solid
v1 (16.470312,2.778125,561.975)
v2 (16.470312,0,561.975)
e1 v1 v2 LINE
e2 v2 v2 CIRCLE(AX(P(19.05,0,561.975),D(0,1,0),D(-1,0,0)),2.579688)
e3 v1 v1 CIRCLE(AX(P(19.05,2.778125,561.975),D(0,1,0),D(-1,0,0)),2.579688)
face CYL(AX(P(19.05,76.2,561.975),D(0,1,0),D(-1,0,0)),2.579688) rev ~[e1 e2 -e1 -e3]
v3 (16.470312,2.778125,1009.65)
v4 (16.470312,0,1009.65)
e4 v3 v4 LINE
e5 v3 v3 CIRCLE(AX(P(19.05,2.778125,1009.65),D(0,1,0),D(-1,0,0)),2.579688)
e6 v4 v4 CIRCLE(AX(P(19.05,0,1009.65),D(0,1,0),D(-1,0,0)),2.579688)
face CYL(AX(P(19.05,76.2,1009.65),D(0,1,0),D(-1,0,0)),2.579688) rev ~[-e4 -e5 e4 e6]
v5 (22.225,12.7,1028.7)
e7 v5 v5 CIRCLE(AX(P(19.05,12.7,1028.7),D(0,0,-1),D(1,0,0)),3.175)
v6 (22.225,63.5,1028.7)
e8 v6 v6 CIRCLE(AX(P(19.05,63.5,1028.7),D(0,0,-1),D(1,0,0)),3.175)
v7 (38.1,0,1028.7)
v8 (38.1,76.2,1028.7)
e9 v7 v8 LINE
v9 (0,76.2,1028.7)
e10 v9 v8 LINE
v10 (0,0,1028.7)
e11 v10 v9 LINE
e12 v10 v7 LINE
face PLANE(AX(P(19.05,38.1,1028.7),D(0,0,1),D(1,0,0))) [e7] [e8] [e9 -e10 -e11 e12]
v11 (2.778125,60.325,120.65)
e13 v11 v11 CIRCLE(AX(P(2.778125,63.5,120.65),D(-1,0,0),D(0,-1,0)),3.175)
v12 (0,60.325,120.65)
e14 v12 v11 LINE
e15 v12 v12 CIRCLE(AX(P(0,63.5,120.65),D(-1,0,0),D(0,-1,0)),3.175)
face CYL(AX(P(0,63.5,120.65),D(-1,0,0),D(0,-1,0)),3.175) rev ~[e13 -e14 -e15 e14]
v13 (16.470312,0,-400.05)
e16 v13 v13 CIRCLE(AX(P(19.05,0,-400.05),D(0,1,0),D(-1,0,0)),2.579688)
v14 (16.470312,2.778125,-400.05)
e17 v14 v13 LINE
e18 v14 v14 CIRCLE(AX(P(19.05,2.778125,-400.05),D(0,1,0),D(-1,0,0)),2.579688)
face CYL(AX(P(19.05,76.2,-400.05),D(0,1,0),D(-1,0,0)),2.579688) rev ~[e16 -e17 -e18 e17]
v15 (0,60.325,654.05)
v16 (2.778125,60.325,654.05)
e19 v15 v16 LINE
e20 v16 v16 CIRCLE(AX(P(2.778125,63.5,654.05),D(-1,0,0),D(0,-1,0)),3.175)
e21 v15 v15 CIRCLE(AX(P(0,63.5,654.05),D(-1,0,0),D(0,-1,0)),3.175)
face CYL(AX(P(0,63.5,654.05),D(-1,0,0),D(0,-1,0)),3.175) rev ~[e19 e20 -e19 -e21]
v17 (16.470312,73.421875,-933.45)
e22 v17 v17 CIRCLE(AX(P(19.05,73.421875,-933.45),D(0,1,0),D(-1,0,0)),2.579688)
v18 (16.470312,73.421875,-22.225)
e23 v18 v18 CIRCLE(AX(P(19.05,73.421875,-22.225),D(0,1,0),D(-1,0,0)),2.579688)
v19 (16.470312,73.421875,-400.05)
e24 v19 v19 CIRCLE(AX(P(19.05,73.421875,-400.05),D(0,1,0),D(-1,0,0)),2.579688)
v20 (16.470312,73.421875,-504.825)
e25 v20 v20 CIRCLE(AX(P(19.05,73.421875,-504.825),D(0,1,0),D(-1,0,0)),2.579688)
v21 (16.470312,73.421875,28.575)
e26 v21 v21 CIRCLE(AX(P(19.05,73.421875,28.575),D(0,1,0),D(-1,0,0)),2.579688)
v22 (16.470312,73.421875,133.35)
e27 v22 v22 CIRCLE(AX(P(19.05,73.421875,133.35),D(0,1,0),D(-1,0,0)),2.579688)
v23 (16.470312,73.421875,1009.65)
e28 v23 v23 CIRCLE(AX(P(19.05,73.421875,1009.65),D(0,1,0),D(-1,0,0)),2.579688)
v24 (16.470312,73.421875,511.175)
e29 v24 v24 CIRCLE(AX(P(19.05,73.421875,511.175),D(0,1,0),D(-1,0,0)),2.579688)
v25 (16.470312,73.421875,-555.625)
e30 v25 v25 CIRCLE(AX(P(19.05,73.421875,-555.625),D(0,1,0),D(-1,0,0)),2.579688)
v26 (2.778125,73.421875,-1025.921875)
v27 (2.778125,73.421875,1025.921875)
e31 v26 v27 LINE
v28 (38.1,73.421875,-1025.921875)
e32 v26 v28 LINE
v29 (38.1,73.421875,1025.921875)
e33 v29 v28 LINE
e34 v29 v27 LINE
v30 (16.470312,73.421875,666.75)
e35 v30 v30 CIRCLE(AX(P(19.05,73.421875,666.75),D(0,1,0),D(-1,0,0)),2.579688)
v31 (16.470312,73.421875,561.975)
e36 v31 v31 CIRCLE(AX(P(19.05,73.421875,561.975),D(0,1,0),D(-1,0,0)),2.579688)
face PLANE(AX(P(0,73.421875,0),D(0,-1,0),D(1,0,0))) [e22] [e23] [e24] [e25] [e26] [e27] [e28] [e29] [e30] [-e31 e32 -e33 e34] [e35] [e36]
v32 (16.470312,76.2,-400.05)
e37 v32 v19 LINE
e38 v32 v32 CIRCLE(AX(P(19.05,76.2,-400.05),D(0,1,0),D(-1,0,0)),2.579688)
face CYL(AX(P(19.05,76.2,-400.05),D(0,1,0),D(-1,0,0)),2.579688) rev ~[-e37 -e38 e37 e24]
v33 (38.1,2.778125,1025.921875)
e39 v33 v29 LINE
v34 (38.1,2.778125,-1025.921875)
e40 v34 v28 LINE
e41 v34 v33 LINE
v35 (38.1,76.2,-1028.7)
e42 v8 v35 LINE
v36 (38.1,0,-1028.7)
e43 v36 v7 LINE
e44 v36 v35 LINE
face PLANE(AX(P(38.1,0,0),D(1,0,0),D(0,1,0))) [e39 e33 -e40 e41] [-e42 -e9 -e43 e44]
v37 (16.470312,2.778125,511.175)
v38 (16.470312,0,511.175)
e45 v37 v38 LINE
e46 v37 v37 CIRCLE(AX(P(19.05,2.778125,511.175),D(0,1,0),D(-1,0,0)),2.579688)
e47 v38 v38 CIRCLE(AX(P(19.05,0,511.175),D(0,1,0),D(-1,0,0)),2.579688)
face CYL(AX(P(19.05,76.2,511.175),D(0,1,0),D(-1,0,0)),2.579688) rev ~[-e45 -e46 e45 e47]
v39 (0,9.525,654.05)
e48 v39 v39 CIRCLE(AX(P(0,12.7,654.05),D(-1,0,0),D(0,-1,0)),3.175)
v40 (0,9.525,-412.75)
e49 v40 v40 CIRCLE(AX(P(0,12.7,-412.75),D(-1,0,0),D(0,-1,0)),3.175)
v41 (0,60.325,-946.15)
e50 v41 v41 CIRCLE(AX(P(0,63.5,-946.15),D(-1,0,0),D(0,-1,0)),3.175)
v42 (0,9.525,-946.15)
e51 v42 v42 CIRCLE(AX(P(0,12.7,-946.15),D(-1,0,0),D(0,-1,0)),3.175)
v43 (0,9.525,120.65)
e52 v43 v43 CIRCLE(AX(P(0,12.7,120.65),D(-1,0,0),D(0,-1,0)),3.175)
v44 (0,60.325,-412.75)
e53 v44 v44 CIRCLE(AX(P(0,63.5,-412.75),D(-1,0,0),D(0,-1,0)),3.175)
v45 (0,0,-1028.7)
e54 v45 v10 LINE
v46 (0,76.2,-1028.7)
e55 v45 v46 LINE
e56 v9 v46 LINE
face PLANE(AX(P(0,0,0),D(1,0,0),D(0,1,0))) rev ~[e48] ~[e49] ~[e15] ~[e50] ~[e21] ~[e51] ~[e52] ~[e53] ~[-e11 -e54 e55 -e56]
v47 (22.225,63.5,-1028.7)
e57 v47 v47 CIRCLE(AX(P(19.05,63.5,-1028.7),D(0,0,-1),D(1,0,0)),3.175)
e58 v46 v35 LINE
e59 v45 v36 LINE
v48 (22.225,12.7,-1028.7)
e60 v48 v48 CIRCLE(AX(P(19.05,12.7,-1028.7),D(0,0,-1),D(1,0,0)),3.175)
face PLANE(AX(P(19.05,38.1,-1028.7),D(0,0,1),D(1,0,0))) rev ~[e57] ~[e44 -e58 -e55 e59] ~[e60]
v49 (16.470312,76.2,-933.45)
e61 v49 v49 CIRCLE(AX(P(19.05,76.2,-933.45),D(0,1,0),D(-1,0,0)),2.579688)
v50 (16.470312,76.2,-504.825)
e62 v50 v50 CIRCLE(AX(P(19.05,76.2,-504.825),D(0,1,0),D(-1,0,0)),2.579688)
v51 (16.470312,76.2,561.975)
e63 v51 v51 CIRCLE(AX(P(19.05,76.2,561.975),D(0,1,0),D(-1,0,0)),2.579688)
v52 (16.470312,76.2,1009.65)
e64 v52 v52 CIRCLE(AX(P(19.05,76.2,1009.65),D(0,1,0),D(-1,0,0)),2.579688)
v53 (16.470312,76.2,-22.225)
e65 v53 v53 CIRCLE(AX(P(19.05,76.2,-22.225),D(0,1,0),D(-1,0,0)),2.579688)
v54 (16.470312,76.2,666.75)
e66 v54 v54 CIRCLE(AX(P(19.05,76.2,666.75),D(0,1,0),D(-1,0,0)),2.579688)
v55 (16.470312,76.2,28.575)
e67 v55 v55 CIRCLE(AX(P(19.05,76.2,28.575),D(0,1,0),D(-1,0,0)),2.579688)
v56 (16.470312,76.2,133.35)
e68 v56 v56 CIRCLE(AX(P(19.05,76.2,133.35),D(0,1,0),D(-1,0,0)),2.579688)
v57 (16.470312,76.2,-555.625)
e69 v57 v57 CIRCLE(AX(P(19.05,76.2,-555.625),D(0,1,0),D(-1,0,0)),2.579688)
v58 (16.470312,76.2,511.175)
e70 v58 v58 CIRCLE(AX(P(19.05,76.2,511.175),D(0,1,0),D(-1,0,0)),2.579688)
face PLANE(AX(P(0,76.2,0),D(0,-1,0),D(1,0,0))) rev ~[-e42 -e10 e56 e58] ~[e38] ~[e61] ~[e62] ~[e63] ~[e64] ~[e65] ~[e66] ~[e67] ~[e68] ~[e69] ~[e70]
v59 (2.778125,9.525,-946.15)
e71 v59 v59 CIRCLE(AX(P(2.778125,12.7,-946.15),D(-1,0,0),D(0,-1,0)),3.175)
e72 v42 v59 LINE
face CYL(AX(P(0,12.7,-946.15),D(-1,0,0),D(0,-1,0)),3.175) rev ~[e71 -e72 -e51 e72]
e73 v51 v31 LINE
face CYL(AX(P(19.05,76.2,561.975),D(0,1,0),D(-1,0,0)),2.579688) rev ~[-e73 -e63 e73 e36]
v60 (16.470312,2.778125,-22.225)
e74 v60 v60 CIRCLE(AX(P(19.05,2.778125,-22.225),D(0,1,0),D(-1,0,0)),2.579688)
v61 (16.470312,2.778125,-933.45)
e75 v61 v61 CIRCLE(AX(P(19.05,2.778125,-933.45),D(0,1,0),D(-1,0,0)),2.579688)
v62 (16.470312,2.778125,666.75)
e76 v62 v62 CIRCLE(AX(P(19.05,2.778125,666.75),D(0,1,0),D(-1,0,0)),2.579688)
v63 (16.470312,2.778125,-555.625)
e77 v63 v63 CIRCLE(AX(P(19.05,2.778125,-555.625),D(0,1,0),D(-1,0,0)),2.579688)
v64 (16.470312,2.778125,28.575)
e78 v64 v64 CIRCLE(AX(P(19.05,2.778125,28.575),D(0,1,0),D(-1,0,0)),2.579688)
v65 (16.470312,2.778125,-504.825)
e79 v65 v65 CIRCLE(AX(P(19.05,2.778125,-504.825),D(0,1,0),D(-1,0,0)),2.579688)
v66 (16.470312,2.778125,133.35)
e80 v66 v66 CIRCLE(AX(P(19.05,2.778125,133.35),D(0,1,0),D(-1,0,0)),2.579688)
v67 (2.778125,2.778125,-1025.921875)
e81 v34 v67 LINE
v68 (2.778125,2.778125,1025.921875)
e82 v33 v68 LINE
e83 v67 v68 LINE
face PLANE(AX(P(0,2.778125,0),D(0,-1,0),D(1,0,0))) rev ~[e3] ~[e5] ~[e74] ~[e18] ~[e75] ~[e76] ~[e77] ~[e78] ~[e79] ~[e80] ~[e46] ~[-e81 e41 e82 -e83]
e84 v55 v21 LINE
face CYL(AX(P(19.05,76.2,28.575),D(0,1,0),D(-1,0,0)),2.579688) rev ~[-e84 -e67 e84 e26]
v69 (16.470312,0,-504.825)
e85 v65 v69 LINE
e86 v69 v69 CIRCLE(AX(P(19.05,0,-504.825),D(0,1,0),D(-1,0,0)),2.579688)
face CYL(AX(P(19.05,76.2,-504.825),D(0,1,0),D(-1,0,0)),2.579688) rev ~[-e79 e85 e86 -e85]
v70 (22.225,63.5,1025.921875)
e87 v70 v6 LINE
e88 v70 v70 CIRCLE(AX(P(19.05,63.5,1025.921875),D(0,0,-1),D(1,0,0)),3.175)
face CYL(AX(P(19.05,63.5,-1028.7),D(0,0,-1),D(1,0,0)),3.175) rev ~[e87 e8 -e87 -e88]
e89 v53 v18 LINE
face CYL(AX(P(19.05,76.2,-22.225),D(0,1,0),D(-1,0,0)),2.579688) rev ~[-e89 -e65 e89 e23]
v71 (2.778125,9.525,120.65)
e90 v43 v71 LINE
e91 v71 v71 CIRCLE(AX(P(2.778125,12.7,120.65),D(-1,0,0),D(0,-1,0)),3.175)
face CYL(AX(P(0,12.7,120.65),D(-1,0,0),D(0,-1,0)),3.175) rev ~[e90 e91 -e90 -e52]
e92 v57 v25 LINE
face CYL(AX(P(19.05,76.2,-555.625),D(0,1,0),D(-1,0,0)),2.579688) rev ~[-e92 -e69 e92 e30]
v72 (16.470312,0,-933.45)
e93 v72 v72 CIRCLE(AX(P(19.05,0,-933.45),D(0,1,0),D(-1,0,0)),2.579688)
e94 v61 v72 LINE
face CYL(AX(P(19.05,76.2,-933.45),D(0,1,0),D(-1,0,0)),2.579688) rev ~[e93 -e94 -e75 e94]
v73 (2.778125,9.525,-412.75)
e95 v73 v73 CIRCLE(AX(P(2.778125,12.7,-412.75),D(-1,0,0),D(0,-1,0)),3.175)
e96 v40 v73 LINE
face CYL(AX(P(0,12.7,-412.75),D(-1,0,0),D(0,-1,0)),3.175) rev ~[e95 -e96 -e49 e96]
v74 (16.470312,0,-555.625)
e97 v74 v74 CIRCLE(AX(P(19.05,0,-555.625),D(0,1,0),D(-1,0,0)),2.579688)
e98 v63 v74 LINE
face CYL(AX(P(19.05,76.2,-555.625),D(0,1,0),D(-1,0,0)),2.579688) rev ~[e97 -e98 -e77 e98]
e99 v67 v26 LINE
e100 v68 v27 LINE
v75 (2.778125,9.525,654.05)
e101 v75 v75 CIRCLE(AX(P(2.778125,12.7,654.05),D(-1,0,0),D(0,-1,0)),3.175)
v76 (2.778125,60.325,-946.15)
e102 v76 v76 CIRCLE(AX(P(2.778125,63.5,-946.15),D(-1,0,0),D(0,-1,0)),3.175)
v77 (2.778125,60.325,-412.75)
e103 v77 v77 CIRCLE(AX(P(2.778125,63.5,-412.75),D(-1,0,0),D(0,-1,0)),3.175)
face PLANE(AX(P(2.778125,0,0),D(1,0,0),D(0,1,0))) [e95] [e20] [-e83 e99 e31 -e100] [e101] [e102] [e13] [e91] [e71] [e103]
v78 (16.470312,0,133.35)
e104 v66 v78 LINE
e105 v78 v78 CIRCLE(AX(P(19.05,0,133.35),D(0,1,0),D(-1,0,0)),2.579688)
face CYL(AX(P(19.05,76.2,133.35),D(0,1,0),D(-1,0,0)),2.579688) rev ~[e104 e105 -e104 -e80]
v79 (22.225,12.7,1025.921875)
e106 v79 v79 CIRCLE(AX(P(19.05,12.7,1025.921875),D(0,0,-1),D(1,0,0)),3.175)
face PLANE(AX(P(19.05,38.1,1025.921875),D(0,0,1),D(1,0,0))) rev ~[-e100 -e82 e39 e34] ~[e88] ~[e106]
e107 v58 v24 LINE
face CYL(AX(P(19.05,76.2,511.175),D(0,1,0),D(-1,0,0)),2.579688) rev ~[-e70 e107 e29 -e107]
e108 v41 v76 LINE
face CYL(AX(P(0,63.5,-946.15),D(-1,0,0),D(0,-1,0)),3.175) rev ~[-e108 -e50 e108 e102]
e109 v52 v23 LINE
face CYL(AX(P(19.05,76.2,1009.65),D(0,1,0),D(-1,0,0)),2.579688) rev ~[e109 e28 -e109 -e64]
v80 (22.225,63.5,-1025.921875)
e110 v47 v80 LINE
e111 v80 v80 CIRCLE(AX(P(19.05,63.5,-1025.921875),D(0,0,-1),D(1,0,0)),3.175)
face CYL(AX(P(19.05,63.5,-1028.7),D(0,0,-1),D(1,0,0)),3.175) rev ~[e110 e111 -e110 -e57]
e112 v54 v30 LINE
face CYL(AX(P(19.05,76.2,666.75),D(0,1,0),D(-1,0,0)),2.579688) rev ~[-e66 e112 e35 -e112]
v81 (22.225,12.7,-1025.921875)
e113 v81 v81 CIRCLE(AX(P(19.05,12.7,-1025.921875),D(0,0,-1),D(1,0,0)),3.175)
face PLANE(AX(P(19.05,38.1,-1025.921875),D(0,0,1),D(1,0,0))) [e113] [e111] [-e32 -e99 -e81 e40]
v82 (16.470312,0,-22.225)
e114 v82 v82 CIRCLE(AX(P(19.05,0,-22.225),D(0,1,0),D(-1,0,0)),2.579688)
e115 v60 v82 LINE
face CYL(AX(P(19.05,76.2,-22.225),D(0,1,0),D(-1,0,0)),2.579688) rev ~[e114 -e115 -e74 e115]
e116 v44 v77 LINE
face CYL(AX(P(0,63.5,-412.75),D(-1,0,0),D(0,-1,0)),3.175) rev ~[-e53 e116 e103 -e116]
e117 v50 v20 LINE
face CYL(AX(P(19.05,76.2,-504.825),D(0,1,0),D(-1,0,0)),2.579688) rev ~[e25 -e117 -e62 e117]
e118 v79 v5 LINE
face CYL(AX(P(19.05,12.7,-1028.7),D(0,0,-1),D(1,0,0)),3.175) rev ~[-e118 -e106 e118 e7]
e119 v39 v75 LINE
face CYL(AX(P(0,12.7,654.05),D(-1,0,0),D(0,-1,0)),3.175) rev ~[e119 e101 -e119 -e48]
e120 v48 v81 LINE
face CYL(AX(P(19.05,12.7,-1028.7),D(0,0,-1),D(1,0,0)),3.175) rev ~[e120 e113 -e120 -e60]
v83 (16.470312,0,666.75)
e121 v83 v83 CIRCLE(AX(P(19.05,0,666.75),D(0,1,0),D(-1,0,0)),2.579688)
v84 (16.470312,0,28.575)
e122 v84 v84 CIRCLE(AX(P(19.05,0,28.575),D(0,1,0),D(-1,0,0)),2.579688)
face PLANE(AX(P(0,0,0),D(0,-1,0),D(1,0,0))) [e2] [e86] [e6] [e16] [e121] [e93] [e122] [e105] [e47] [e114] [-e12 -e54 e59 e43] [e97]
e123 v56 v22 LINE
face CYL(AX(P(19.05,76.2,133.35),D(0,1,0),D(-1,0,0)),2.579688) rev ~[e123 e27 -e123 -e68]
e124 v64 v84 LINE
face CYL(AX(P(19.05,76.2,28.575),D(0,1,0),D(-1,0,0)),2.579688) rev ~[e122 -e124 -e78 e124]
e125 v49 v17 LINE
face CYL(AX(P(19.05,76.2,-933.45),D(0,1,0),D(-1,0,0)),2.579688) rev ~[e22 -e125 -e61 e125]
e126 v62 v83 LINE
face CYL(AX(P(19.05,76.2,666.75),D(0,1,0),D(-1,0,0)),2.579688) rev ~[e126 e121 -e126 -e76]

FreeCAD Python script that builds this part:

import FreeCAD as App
import Part
import Sketcher

V = App.Vector
Q = App.Units.Quantity


def faces_at(feature, points):
    """Names of the faces that lie closest to the given points."""
    faces = feature.Shape.Faces
    near = lambda p: min(range(len(faces)), key=lambda i: faces[i].distToShape(Part.Vertex(*p))[0])
    return sorted({f"Face{near(p) + 1}" for p in points})

doc = App.newDocument("Part")
body = doc.addObject("PartDesign::Body", "Body")

sketch1 = doc.addObject("Sketcher::SketchObject", "Sketch")
body.addObject(sketch1)
sketch1.AttachmentSupport = (doc.XY_Plane, [""])
sketch1.MapMode = "FlatFace"
sketch1.addGeometry(Part.LineSegment(V(0, 76.2, 0), V(0, 0, 0)), False)
sketch1.addGeometry(Part.LineSegment(V(0, 0, 0), V(38.1, 0, 0)), False)
sketch1.addGeometry(Part.LineSegment(V(38.1, 0, 0), V(38.1, 76.2, 0)), False)
sketch1.addGeometry(Part.LineSegment(V(38.1, 76.2, 0), V(0, 76.2, 0)), False)
sketch1.addConstraint(Sketcher.Constraint("Coincident", 0, 2, 1, 1))
sketch1.addConstraint(Sketcher.Constraint("Coincident", 1, 2, 2, 1))
sketch1.addConstraint(Sketcher.Constraint("Coincident", 2, 2, 3, 1))
sketch1.addConstraint(Sketcher.Constraint("Coincident", 3, 2, 0, 1))
sketch1.addConstraint(Sketcher.Constraint("Vertical", 0))
sketch1.addConstraint(Sketcher.Constraint("Horizontal", 1))
sketch1.addConstraint(Sketcher.Constraint("Vertical", 2))
sketch1.addConstraint(Sketcher.Constraint("Horizontal", 3))
sketch1.addConstraint(Sketcher.Constraint("Coincident", 0, 2, -1, 1))
sketch1.addConstraint(Sketcher.Constraint("DistanceY", 0, 2, 0, 1, Q("3 in")))
sketch1.addConstraint(Sketcher.Constraint("DistanceX", 1, 1, 1, 2, Q("1.5 in")))
pad1 = doc.addObject("PartDesign::Pad", "Pad")
body.addObject(pad1)
pad1.Profile = sketch1
pad1.Length = Q("81 in")
pad1.Midplane = True
doc.recompute()

thickness = doc.addObject("PartDesign::Thickness", "Thickness")
body.addObject(thickness)
thickness.Base = (pad1, faces_at(pad1, [(38.1, 38.1, 0)]))
thickness.Value = Q("0.109375 in")
thickness.Reversed = True
thickness.Join = "Arc"

sketch2 = doc.addObject("Sketcher::SketchObject", "Sketch001")
body.addObject(sketch2)
sketch2.AttachmentSupport = (doc.YZ_Plane, [""])
sketch2.MapMode = "FlatFace"
sketch2.addGeometry(Part.Circle(V(63.5, -946.15, 0), V(0, 0, 1), 3.175), False)
sketch2.addGeometry(Part.Circle(V(12.7, -946.15, 0), V(0, 0, 1), 3.175), False)
sketch2.addGeometry(Part.Circle(V(63.5, -412.75, 0), V(0, 0, 1), 3.175), False)
sketch2.addGeometry(Part.Circle(V(12.7, -412.75, 0), V(0, 0, 1), 3.175), False)
sketch2.addGeometry(Part.Circle(V(63.5, 120.65, 0), V(0, 0, 1), 3.175), False)
sketch2.addGeometry(Part.Circle(V(12.7, 120.65, 0), V(0, 0, 1), 3.175), False)
sketch2.addGeometry(Part.Circle(V(63.5, 654.05, 0), V(0, 0, 1), 3.175), False)
sketch2.addGeometry(Part.Circle(V(12.7, 654.05, 0), V(0, 0, 1), 3.175), False)
sketch2.addConstraint(Sketcher.Constraint("Equal", 0, 1))
sketch2.addConstraint(Sketcher.Constraint("Equal", 1, 2))
sketch2.addConstraint(Sketcher.Constraint("Equal", 2, 3))
sketch2.addConstraint(Sketcher.Constraint("Equal", 3, 4))
sketch2.addConstraint(Sketcher.Constraint("Equal", 4, 5))
sketch2.addConstraint(Sketcher.Constraint("Equal", 5, 6))
sketch2.addConstraint(Sketcher.Constraint("Equal", 6, 7))
sketch2.addConstraint(Sketcher.Constraint("Horizontal", 0, 3, 1, 3))
sketch2.addConstraint(Sketcher.Constraint("Horizontal", 2, 3, 3, 3))
sketch2.addConstraint(Sketcher.Constraint("Horizontal", 4, 3, 5, 3))
sketch2.addConstraint(Sketcher.Constraint("Horizontal", 6, 3, 7, 3))
sketch2.addConstraint(Sketcher.Constraint("Vertical", 0, 3, 2, 3))
sketch2.addConstraint(Sketcher.Constraint("Vertical", 1, 3, 3, 3))
sketch2.addConstraint(Sketcher.Constraint("Vertical", 2, 3, 4, 3))
sketch2.addConstraint(Sketcher.Constraint("Vertical", 3, 3, 5, 3))
sketch2.addConstraint(Sketcher.Constraint("Vertical", 4, 3, 6, 3))
sketch2.addConstraint(Sketcher.Constraint("Vertical", 5, 3, 7, 3))
sketch2.addConstraint(Sketcher.Constraint("Diameter", 0, Q("0.25 in")))
sketch2.addConstraint(Sketcher.Constraint("DistanceX", 1, 3, 0, 3, Q("2 in")))
sketch2.addConstraint(Sketcher.Constraint("DistanceY", 0, 3, 2, 3, Q("21 in")))
sketch2.addConstraint(Sketcher.Constraint("DistanceY", 2, 3, 4, 3, Q("21 in")))
sketch2.addConstraint(Sketcher.Constraint("DistanceY", 4, 3, 6, 3, Q("21 in")))
sketch2.addConstraint(Sketcher.Constraint("DistanceX", -1, 1, 0, 3, Q("2.5 in")))
sketch2.addConstraint(Sketcher.Constraint("DistanceY", 0, 3, -1, 1, Q("37.25 in")))
pocket1 = doc.addObject("PartDesign::Pocket", "Pocket")
body.addObject(pocket1)
pocket1.Profile = sketch2
pocket1.Type = "ThroughAll"
pocket1.Reversed = True

sketch3 = doc.addObject("Sketcher::SketchObject", "Sketch002")
body.addObject(sketch3)
sketch3.AttachmentSupport = (doc.XY_Plane, [""])
sketch3.MapMode = "FlatFace"
sketch3.AttachmentOffset = App.Placement(V(0, 0, -40.5 * 25.4), App.Rotation())
sketch3.addGeometry(Part.Circle(V(19.05, 12.7, 0), V(0, 0, 1), 3.175), False)
sketch3.addGeometry(Part.Circle(V(19.05, 63.5, 0), V(0, 0, 1), 3.175), False)
sketch3.addConstraint(Sketcher.Constraint("Equal", 0, 1))
sketch3.addConstraint(Sketcher.Constraint("Vertical", 0, 3, 1, 3))
sketch3.addConstraint(Sketcher.Constraint("Diameter", 0, Q("0.25 in")))
sketch3.addConstraint(Sketcher.Constraint("DistanceY", 0, 3, 1, 3, Q("2 in")))
sketch3.addConstraint(Sketcher.Constraint("DistanceY", -1, 1, 0, 3, Q("0.5 in")))
sketch3.addConstraint(Sketcher.Constraint("DistanceX", -1, 1, 0, 3, Q("0.75 in")))
pocket2 = doc.addObject("PartDesign::Pocket", "Pocket001")
body.addObject(pocket2)
pocket2.Profile = sketch3
pocket2.Type = "ThroughAll"
pocket2.Reversed = True

sketch4 = doc.addObject("Sketcher::SketchObject", "Sketch003")
body.addObject(sketch4)
sketch4.AttachmentSupport = (doc.XZ_Plane, [""])
sketch4.MapMode = "FlatFace"
sketch4.AttachmentOffset = App.Placement(V(0, 0, -3 * 25.4), App.Rotation())
sketch4.addGeometry(Part.Circle(V(19.05, 561.975, 0), V(0, 0, 1), 2.579688), False)
sketch4.addGeometry(Part.Circle(V(19.05, 511.175, 0), V(0, 0, 1), 2.579688), False)
sketch4.addGeometry(Part.Circle(V(19.05, 133.35, 0), V(0, 0, 1), 2.579688), False)
sketch4.addGeometry(Part.Circle(V(19.05, -22.225, 0), V(0, 0, 1), 2.579688), False)
sketch4.addGeometry(Part.Circle(V(19.05, 28.575, 0), V(0, 0, 1), 2.579688), False)
sketch4.addGeometry(Part.Circle(V(19.05, -400.05, 0), V(0, 0, 1), 2.579688), False)
sketch4.addGeometry(Part.Circle(V(19.05, -555.625, 0), V(0, 0, 1), 2.579688), False)
sketch4.addGeometry(Part.Circle(V(19.05, -504.825, 0), V(0, 0, 1), 2.579688), False)
sketch4.addGeometry(Part.Circle(V(19.05, -933.45, 0), V(0, 0, 1), 2.579688), False)
sketch4.addGeometry(Part.Circle(V(19.05, 666.75, 0), V(0, 0, 1), 2.579688), False)
sketch4.addGeometry(Part.Circle(V(19.05, 1009.65, 0), V(0, 0, 1), 2.579688), False)
sketch4.addConstraint(Sketcher.Constraint("Equal", 0, 1))
sketch4.addConstraint(Sketcher.Constraint("Equal", 1, 2))
sketch4.addConstraint(Sketcher.Constraint("Equal", 2, 3))
sketch4.addConstraint(Sketcher.Constraint("Equal", 3, 4))
sketch4.addConstraint(Sketcher.Constraint("Equal", 4, 5))
sketch4.addConstraint(Sketcher.Constraint("Equal", 5, 6))
sketch4.addConstraint(Sketcher.Constraint("Equal", 6, 7))
sketch4.addConstraint(Sketcher.Constraint("Equal", 7, 8))
sketch4.addConstraint(Sketcher.Constraint("Equal", 8, 9))
sketch4.addConstraint(Sketcher.Constraint("Equal", 9, 10))
sketch4.addConstraint(Sketcher.Constraint("Vertical", 0, 3, 1, 3))
sketch4.addConstraint(Sketcher.Constraint("Vertical", 1, 3, 2, 3))
sketch4.addConstraint(Sketcher.Constraint("Vertical", 2, 3, 3, 3))
sketch4.addConstraint(Sketcher.Constraint("Vertical", 3, 3, 4, 3))
sketch4.addConstraint(Sketcher.Constraint("Vertical", 4, 3, 5, 3))
sketch4.addConstraint(Sketcher.Constraint("Vertical", 5, 3, 6, 3))
sketch4.addConstraint(Sketcher.Constraint("Vertical", 6, 3, 7, 3))
sketch4.addConstraint(Sketcher.Constraint("Vertical", 7, 3, 8, 3))
sketch4.addConstraint(Sketcher.Constraint("Vertical", 8, 3, 9, 3))
sketch4.addConstraint(Sketcher.Constraint("Vertical", 9, 3, 10, 3))
sketch4.addConstraint(Sketcher.Constraint("Diameter", 0, Q("0.203125 in")))
sketch4.addConstraint(Sketcher.Constraint("DistanceY", 1, 3, 0, 3, Q("2 in")))
sketch4.addConstraint(Sketcher.Constraint("DistanceY", 3, 3, 1, 3, Q("21 in")))
sketch4.addConstraint(Sketcher.Constraint("DistanceY", 3, 3, 4, 3, Q("2 in")))
sketch4.addConstraint(Sketcher.Constraint("DistanceY", 5, 3, 2, 3, Q("21 in")))
sketch4.addConstraint(Sketcher.Constraint("DistanceY", 6, 3, 3, 3, Q("21 in")))
sketch4.addConstraint(Sketcher.Constraint("DistanceY", 6, 3, 7, 3, Q("2 in")))
sketch4.addConstraint(Sketcher.Constraint("DistanceY", 8, 3, 5, 3, Q("21 in")))
sketch4.addConstraint(Sketcher.Constraint("DistanceY", 2, 3, 9, 3, Q("21 in")))
sketch4.addConstraint(Sketcher.Constraint("DistanceY", 9, 3, 10, 3, Q("13.5 in")))
sketch4.addConstraint(Sketcher.Constraint("DistanceX", -1, 1, 0, 3, Q("0.75 in")))
sketch4.addConstraint(Sketcher.Constraint("DistanceY", -1, 1, 2, 3, Q("5.25 in")))
sketch4.addConstraint(Sketcher.Constraint("DistanceY", -1, 1, 0, 3, Q("22.125 in")))
pocket3 = doc.addObject("PartDesign::Pocket", "Pocket002")
body.addObject(pocket3)
pocket3.Profile = sketch4
pocket3.Type = "ThroughAll"
pocket3.Reversed = True

doc.recompute()
